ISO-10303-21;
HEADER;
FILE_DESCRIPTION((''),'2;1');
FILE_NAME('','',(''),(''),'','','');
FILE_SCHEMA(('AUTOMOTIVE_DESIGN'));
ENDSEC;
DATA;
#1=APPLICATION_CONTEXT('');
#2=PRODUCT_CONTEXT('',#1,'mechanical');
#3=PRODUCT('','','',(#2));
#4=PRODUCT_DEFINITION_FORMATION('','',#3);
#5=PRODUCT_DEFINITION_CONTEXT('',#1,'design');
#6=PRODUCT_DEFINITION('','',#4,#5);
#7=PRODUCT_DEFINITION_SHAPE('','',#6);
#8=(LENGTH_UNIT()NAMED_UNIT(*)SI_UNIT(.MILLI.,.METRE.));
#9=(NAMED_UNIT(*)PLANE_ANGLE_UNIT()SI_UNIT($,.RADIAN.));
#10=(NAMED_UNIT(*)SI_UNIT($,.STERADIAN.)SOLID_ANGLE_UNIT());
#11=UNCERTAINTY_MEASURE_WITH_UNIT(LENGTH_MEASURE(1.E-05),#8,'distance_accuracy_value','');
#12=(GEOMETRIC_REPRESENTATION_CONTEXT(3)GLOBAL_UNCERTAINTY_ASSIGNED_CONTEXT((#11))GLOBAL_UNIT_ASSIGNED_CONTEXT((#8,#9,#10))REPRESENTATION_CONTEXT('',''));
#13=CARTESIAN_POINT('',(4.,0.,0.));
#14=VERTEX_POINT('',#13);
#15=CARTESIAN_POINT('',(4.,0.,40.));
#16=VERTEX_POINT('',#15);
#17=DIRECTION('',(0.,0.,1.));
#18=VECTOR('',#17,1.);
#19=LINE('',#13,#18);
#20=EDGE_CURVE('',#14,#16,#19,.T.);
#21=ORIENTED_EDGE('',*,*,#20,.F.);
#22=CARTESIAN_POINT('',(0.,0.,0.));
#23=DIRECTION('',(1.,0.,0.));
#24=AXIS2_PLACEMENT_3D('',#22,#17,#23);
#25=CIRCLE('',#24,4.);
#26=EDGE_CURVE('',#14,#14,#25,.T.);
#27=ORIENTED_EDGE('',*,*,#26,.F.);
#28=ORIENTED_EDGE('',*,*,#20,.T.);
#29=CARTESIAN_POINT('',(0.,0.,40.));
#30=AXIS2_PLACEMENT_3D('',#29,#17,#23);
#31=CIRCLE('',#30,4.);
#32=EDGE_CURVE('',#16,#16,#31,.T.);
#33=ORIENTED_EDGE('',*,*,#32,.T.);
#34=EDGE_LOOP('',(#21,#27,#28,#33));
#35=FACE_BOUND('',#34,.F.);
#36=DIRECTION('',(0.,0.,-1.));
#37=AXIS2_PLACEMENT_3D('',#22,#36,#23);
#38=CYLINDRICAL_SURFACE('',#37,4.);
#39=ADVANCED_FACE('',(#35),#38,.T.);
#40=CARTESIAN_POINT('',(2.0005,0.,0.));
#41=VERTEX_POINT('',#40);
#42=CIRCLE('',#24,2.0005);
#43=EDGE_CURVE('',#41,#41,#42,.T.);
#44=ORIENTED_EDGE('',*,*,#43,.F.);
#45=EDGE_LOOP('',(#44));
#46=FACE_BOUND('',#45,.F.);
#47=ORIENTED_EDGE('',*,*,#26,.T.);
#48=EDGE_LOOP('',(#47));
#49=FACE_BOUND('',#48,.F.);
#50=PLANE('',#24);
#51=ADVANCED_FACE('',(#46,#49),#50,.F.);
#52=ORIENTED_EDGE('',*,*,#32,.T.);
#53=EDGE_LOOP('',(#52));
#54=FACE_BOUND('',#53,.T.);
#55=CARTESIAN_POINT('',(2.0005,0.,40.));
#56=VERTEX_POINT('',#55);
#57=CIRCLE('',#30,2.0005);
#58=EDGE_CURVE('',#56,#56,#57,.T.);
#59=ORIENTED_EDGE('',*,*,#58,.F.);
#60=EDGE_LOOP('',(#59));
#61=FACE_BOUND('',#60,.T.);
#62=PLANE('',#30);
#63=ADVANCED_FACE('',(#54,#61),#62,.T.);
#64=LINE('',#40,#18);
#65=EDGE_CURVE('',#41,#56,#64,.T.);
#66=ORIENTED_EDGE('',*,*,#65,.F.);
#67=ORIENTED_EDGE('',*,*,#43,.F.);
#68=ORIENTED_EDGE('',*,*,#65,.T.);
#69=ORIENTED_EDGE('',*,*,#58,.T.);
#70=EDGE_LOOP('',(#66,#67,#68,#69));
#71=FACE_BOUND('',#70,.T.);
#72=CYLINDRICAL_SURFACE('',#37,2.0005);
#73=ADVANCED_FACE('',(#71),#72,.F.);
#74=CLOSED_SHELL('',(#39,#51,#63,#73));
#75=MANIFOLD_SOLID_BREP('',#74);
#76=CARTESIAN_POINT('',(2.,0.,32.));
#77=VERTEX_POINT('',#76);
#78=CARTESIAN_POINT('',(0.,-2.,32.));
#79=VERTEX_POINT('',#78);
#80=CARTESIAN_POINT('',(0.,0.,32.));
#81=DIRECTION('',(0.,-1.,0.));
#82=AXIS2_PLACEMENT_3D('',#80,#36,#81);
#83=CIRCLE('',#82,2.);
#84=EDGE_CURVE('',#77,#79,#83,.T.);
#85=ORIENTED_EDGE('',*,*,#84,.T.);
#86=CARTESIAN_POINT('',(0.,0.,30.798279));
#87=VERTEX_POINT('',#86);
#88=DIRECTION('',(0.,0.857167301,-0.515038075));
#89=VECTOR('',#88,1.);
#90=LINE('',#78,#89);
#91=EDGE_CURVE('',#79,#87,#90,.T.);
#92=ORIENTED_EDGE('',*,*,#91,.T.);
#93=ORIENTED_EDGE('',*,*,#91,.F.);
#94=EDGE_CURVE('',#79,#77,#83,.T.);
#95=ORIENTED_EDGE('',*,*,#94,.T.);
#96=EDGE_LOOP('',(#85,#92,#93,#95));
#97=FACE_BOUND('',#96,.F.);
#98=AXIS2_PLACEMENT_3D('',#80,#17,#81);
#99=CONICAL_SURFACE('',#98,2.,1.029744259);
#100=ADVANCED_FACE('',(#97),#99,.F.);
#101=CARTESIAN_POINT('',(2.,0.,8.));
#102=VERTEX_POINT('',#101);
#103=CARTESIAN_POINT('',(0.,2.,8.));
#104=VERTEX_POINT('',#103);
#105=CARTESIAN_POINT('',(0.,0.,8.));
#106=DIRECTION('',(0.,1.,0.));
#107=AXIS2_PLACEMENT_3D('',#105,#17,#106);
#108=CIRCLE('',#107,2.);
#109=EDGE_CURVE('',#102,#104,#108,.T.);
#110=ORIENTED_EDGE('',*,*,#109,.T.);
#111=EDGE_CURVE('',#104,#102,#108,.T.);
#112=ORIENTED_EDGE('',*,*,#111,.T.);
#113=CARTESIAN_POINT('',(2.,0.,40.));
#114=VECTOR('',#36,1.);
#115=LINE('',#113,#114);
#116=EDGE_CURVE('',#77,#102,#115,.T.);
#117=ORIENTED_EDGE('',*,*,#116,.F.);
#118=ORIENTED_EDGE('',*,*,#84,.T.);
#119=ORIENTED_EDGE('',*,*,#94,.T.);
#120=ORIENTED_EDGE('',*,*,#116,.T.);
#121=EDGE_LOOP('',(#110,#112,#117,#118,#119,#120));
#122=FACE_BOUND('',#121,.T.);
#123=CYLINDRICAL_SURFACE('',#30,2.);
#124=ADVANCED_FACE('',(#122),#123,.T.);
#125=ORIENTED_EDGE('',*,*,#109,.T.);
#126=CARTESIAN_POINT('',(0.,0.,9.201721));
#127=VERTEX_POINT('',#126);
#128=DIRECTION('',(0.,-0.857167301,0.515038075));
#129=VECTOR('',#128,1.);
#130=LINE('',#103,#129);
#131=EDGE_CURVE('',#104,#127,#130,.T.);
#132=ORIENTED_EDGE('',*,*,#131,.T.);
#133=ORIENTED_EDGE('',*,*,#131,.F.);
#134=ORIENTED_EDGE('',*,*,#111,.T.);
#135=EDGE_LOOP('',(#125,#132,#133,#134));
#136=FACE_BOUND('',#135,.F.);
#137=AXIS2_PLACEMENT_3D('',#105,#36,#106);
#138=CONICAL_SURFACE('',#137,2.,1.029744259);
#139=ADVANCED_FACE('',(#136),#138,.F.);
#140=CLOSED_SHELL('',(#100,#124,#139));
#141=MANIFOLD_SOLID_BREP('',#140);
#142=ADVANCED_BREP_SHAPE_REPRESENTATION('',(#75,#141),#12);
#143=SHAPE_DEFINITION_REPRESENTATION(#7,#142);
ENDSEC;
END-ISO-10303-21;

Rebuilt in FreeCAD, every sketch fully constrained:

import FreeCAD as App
import Part
import Sketcher

V = App.Vector

doc = App.newDocument("Part")
params = doc.addObject("Spreadsheet::Sheet", "Params")
for row, (alias, value) in enumerate([
    ("sketch1_diameter", "8 mm"),
    ("pad1_length", "40 mm"),
    ("sketch2_diameter", "4 mm"),
    ("pad2_length", "40 mm"),
    ("sketch3_diameter", "4 mm"),
    ("hole_diameter", "4 mm"),
    ("hole_depth", "8 mm"),
    ("sketch4_diameter", "4 mm"),
    ("hole2_diameter", "4 mm"),
    ("hole2_depth", "8 mm"),
], start=1):
    params.set(f"A{row}", alias)
    params.set(f"B{row}", "=" + value)
    params.setAlias(f"B{row}", alias)

body = doc.addObject("PartDesign::Body", "Body")
body.AllowCompound = True

sketch1 = body.newObject("Sketcher::SketchObject", "Sketch")
sketch1.AttachmentSupport = (doc.getObject("XY_Plane"), [""])
sketch1.MapMode = "FlatFace"
sketch1.addGeometry([
    Part.Circle(V(0, 0, 0), V(0, 0, 1), 4),
    Part.Circle(V(0, 0, 0), V(0, 0, 1), 2),
], False)
sketch1.addConstraint([
    Sketcher.Constraint("Coincident", 0, 3, -1, 1),
    Sketcher.Constraint("Coincident", 1, 3, -1, 1),
    Sketcher.Constraint("Diameter", 0, 8.0),
    Sketcher.Constraint("Diameter", 1, 4.001),
])
sketch1.setExpression("Constraints[2]", "Params.sketch1_diameter")
pad1 = body.newObject("PartDesign::Pad", "Pad")
pad1.Profile = sketch1
pad1.setExpression("Length", "Params.pad1_length")

sketch2 = body.newObject("Sketcher::SketchObject", "Sketch001")
sketch2.AttachmentSupport = (doc.getObject("XY_Plane"), [""])
sketch2.MapMode = "FlatFace"
sketch2.AttachmentOffset = App.Placement(V(0, 0, 40), App.Rotation())
sketch2.addGeometry(Part.Circle(V(0, 0, 0), V(0, 0, 1), 2), False)
sketch2.addConstraint([
    Sketcher.Constraint("Coincident", 0, 3, -1, 1),
    Sketcher.Constraint("Diameter", 0, 4.0),
])
sketch2.setExpression("Constraints[1]", "Params.sketch2_diameter")
pad2 = body.newObject("PartDesign::Pad", "Pad001")
pad2.Profile = sketch2
pad2.setExpression("Length", "Params.pad2_length")
pad2.Reversed = True

sketch3 = body.newObject("Sketcher::SketchObject", "Sketch002")
sketch3.AttachmentSupport = (doc.getObject("XY_Plane"), [""])
sketch3.MapMode = "FlatFace"
sketch3.AttachmentOffset = App.Placement(V(0, 0, 40), App.Rotation())
sketch3.addGeometry(Part.Circle(V(0, 0, 0), V(0, 0, 1), 2), False)
sketch3.addConstraint([
    Sketcher.Constraint("Coincident", 0, 3, -1, 1),
    Sketcher.Constraint("Diameter", 0, 4.0),
])
sketch3.setExpression("Constraints[1]", "Params.sketch3_diameter")
doc.recompute()
hole = body.newObject("PartDesign::Hole", "Hole")
hole.Profile = sketch3
hole.ThreadType = "None"
hole.setExpression("Diameter", "Params.hole_diameter")
hole.DepthType = "Dimension"
hole.setExpression("Depth", "Params.hole_depth")
hole.DrillPoint = "Angled"
hole.DrillPointAngle = 118

sketch4 = body.newObject("Sketcher::SketchObject", "Sketch003")
sketch4.AttachmentSupport = (doc.getObject("XY_Plane"), [""])
sketch4.MapMode = "FlatFace"
sketch4.addGeometry(Part.Circle(V(0, 0, 0), V(0, 0, 1), 2), False)
sketch4.addConstraint([
    Sketcher.Constraint("Coincident", 0, 3, -1, 1),
    Sketcher.Constraint("Diameter", 0, 4.0),
])
sketch4.setExpression("Constraints[1]", "Params.sketch4_diameter")
doc.recompute()
hole2 = body.newObject("PartDesign::Hole", "Hole001")
hole2.Profile = sketch4
hole2.ThreadType = "None"
hole2.setExpression("Diameter", "Params.hole2_diameter")
hole2.DepthType = "Dimension"
hole2.setExpression("Depth", "Params.hole2_depth")
hole2.DrillPoint = "Angled"
hole2.DrillPointAngle = 118
hole2.Reversed = True

doc.recompute()
